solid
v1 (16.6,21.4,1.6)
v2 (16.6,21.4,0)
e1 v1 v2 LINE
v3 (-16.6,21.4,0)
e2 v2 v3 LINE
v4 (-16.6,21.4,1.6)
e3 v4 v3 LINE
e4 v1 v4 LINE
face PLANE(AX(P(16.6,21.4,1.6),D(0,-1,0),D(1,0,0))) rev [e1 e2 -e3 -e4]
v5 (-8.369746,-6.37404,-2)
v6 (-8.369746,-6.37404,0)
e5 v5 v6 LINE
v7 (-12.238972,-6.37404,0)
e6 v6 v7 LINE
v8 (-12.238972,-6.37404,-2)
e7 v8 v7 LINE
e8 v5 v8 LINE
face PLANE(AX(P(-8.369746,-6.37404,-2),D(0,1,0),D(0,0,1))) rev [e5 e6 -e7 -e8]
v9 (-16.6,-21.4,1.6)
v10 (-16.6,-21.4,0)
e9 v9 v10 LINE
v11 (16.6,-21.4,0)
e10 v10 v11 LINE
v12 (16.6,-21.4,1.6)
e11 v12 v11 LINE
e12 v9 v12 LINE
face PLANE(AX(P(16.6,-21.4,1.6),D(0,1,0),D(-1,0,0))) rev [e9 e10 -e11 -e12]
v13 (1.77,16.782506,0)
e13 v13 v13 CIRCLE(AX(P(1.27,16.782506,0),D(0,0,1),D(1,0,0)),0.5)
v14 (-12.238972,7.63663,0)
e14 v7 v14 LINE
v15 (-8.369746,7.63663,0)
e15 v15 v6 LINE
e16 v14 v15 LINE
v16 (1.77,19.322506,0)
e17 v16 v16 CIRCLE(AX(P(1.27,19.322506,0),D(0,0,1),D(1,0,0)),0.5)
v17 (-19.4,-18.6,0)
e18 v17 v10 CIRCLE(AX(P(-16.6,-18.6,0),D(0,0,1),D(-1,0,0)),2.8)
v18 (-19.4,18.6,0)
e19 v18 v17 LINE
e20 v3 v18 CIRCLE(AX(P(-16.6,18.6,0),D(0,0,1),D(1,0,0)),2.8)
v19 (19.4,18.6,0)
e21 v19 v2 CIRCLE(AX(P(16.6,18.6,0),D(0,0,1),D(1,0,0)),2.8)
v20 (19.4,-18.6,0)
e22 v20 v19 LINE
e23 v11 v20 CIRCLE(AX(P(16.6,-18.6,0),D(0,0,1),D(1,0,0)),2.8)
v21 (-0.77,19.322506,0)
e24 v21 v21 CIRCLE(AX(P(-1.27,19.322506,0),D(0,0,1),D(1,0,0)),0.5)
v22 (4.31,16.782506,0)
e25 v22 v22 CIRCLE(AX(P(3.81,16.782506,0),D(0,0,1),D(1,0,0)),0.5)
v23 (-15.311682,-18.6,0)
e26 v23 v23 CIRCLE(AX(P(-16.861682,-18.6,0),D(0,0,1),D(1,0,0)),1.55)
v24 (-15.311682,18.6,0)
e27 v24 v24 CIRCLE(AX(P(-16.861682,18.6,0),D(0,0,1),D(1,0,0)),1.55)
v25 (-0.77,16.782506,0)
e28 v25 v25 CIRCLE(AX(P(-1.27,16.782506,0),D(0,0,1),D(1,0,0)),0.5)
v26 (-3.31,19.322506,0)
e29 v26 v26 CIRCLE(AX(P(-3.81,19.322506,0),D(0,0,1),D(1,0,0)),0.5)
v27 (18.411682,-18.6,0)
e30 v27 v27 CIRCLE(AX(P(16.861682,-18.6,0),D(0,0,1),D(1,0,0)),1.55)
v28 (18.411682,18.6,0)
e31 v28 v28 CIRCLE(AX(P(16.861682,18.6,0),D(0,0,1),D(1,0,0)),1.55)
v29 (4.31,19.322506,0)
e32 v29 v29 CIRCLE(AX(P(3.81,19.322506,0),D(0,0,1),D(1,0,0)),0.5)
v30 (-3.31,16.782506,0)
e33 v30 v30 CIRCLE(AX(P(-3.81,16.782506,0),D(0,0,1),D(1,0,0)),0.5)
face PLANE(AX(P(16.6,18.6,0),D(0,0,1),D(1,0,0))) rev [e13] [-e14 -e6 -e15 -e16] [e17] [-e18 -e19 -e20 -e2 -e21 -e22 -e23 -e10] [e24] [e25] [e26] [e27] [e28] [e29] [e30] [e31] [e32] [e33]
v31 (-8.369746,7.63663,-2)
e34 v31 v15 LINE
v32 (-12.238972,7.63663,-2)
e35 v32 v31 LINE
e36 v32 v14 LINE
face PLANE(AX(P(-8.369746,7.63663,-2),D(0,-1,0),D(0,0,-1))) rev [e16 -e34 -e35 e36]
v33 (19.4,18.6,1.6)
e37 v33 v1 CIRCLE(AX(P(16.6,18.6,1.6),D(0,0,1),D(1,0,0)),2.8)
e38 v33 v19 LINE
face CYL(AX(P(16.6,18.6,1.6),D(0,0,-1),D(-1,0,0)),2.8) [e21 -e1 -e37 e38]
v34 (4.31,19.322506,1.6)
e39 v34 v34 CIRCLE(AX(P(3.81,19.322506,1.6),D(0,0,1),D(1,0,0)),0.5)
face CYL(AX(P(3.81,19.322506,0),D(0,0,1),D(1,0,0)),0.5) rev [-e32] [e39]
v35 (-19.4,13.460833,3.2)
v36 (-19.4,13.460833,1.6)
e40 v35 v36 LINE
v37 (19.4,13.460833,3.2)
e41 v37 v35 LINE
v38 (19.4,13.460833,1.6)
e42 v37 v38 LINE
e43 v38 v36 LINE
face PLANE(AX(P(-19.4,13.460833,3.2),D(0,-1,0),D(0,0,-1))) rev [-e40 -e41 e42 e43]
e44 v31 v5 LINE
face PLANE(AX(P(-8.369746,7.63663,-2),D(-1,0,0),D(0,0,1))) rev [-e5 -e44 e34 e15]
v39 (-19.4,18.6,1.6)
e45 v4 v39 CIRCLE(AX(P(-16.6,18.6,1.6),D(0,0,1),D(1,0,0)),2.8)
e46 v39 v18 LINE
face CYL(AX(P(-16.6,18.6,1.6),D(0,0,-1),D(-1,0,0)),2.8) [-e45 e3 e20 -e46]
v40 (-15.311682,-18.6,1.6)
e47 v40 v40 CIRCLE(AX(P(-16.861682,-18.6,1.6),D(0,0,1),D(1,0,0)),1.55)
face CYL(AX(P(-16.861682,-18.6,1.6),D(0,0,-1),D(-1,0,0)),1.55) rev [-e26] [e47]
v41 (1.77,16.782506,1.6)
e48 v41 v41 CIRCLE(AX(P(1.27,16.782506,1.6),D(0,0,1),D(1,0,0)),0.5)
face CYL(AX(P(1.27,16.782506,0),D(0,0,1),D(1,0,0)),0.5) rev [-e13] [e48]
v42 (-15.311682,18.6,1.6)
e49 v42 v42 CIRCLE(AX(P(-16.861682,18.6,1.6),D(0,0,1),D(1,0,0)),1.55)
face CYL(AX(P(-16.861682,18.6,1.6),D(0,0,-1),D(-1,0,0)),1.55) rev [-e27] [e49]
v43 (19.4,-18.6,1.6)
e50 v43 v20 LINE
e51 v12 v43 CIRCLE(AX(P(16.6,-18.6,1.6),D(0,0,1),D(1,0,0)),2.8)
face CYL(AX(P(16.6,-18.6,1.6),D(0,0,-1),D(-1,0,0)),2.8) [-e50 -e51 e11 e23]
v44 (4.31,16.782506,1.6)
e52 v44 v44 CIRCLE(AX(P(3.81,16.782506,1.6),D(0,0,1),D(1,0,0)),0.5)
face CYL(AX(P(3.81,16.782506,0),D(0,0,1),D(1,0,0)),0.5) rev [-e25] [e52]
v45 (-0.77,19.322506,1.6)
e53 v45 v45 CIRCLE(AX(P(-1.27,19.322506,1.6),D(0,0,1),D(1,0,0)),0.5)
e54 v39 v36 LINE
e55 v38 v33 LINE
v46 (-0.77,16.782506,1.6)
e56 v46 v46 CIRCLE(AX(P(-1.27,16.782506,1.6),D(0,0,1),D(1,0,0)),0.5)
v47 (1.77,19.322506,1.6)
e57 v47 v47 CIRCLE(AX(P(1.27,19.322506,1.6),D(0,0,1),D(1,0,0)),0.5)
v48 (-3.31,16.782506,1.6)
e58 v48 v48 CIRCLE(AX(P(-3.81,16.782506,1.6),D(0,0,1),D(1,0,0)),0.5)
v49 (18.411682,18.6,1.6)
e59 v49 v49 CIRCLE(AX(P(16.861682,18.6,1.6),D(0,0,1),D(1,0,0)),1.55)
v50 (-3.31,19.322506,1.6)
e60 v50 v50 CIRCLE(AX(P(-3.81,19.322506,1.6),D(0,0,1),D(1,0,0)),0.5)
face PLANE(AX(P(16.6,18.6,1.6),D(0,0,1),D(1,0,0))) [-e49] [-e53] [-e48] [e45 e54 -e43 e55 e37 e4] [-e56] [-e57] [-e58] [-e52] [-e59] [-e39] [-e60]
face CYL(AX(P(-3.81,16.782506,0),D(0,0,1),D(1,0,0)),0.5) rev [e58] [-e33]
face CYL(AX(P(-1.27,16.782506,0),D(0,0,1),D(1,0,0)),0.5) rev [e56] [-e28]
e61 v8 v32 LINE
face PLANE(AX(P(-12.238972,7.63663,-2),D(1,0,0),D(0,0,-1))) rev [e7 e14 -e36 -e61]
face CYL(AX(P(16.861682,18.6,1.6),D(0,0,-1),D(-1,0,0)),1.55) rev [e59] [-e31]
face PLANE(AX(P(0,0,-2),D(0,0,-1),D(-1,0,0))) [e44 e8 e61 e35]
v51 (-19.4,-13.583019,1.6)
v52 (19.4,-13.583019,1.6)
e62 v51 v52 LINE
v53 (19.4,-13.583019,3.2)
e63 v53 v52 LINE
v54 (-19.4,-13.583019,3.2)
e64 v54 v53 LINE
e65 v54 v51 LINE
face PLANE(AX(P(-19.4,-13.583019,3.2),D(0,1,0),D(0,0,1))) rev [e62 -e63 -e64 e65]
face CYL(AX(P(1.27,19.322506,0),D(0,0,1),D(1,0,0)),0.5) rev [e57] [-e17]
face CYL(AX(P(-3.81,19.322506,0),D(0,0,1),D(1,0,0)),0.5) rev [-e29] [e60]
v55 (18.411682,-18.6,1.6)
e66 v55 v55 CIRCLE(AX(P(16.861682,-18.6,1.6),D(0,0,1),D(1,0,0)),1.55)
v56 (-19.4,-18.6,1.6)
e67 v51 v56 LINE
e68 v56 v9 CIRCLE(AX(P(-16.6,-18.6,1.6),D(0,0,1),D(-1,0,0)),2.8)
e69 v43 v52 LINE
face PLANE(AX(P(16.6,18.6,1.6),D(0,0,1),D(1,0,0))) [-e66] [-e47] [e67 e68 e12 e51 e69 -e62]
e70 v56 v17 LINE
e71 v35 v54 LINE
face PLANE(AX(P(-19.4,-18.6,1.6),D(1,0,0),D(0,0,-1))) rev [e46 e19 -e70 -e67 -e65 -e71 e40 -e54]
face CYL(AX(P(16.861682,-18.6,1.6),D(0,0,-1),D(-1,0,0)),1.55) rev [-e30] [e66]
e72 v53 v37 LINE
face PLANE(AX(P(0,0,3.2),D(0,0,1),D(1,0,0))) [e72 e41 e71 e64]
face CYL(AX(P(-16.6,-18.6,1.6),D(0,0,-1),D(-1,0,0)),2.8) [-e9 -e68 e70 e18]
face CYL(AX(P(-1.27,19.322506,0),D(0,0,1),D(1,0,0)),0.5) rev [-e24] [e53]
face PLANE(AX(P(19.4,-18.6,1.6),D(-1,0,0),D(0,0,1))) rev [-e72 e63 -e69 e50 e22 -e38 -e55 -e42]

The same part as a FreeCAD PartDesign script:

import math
import FreeCAD as App
import Part
import Sketcher
from FreeCAD import Vector
Q = App.Units.Quantity

doc = App.newDocument("Part")
body = doc.addObject("PartDesign::Body", "Body")

# Sketch on XY plane
sketch1 = body.newObject("Sketcher::SketchObject", "Sketch")
sketch1.AttachmentSupport = (doc.getObject("XY_Plane"), [""])
sketch1.MapMode = "FlatFace"
sketch1.addGeometry(Part.LineSegment(Vector(-16.6, -21.4, 0), Vector(16.6, -21.4, 0)), False)
sketch1.addGeometry(Part.ArcOfCircle(Part.Circle(Vector(16.6, -18.6, 0), Vector(0, 0, 1), 2.8), math.radians(-90), math.radians(0)), False)
sketch1.addGeometry(Part.LineSegment(Vector(19.4, -18.6, 0), Vector(19.4, 18.6, 0)), False)
sketch1.addGeometry(Part.ArcOfCircle(Part.Circle(Vector(16.6, 18.6, 0), Vector(0, 0, 1), 2.8), math.radians(0), math.radians(90)), False)
sketch1.addGeometry(Part.LineSegment(Vector(16.6, 21.4, 0), Vector(-16.6, 21.4, 0)), False)
sketch1.addGeometry(Part.ArcOfCircle(Part.Circle(Vector(-16.6, 18.6, 0), Vector(0, 0, 1), 2.8), math.radians(90), math.radians(180)), False)
sketch1.addGeometry(Part.LineSegment(Vector(-19.4, 18.6, 0), Vector(-19.4, -18.6, 0)), False)
sketch1.addGeometry(Part.ArcOfCircle(Part.Circle(Vector(-16.6, -18.6, 0), Vector(0, 0, 1), 2.8), math.radians(-180), math.radians(-90)), False)
sketch1.addGeometry(Part.Circle(Vector(16.9, -18.6, 0), Vector(0, 0, 1), 1.6), False)
sketch1.addGeometry(Part.Circle(Vector(-16.9, -18.6, 0), Vector(0, 0, 1), 1.6), False)
sketch1.addGeometry(Part.Circle(Vector(16.9, 18.6, 0), Vector(0, 0, 1), 1.6), False)
sketch1.addGeometry(Part.Circle(Vector(-16.9, 18.6, 0), Vector(0, 0, 1), 1.6), False)
sketch1.addConstraint(Sketcher.Constraint("Tangent", 0, 2, 1, 1))
sketch1.addConstraint(Sketcher.Constraint("Tangent", 1, 2, 2, 1))
sketch1.addConstraint(Sketcher.Constraint("Tangent", 2, 2, 3, 1))
sketch1.addConstraint(Sketcher.Constraint("Tangent", 3, 2, 4, 1))
sketch1.addConstraint(Sketcher.Constraint("Tangent", 4, 2, 5, 1))
sketch1.addConstraint(Sketcher.Constraint("Tangent", 5, 2, 6, 1))
sketch1.addConstraint(Sketcher.Constraint("Tangent", 6, 2, 7, 1))
sketch1.addConstraint(Sketcher.Constraint("Tangent", 7, 2, 0, 1))
sketch1.addConstraint(Sketcher.Constraint("Horizontal", 0))
sketch1.addConstraint(Sketcher.Constraint("Vertical", 2))
sketch1.addConstraint(Sketcher.Constraint("Horizontal", 4))
sketch1.addConstraint(Sketcher.Constraint("Vertical", 6))
sketch1.addConstraint(Sketcher.Constraint("Equal", 1, 3))
sketch1.addConstraint(Sketcher.Constraint("Equal", 3, 5))
sketch1.addConstraint(Sketcher.Constraint("Equal", 5, 7))
sketch1.addConstraint(Sketcher.Constraint("Equal", 8, 9))
sketch1.addConstraint(Sketcher.Constraint("Equal", 9, 10))
sketch1.addConstraint(Sketcher.Constraint("Equal", 10, 11))
sketch1.addConstraint(Sketcher.Constraint("Symmetric", 1, 3, 5, 3, -1, 1))
sketch1.addConstraint(Sketcher.Constraint("Symmetric", 9, 3, 10, 3, -1, 1))
sketch1.addConstraint(Sketcher.Constraint("Symmetric", 8, 3, 11, 3, -1, 1))
sketch1.addConstraint(Sketcher.Constraint("Symmetric", 8, 3, 9, 3, -2))
sketch1.addConstraint(Sketcher.Constraint("Horizontal", 7, 3, 8, 3))
sketch1.addConstraint(Sketcher.Constraint("Diameter", 8, Q("3.1 mm")))
sketch1.addConstraint(Sketcher.Constraint("Radius", 1, Q("2.8 mm")))
sketch1.addConstraint(Sketcher.Constraint("DistanceX", 0, 1, 0, 2, Q("33.2 mm")))
sketch1.addConstraint(Sketcher.Constraint("DistanceY", 2, 1, 2, 2, Q("37.2 mm")))
sketch1.addConstraint(Sketcher.Constraint("DistanceX", -1, 1, 8, 3, Q("16.861682 mm")))
pad1 = body.newObject("PartDesign::Pad", "Pad")
pad1.Profile = sketch1
pad1.Length = 1.6

# Sketch on XY plane
sketch2 = body.newObject("Sketcher::SketchObject", "Sketch001")
sketch2.AttachmentSupport = (doc.getObject("XY_Plane"), [""])
sketch2.MapMode = "FlatFace"
sketch2.AttachmentOffset = App.Placement(Vector(0, 0, 1.6), App.Rotation())
sketch2.addGeometry(Part.Circle(Vector(-3.8, 16.8, 0), Vector(0, 0, 1), 0.5), False)
sketch2.addGeometry(Part.Circle(Vector(-1.3, 16.8, 0), Vector(0, 0, 1), 0.5), False)
sketch2.addGeometry(Part.Circle(Vector(1.3, 16.8, 0), Vector(0, 0, 1), 0.5), False)
sketch2.addGeometry(Part.Circle(Vector(3.8, 16.8, 0), Vector(0, 0, 1), 0.5), False)
sketch2.addGeometry(Part.Circle(Vector(-1.3, 19.3, 0), Vector(0, 0, 1), 0.5), False)
sketch2.addGeometry(Part.Circle(Vector(1.3, 19.3, 0), Vector(0, 0, 1), 0.5), False)
sketch2.addGeometry(Part.Circle(Vector(3.8, 19.3, 0), Vector(0, 0, 1), 0.5), False)
sketch2.addGeometry(Part.Circle(Vector(-3.8, 19.3, 0), Vector(0, 0, 1), 0.5), False)
sketch2.addConstraint(Sketcher.Constraint("Equal", 0, 1))
sketch2.addConstraint(Sketcher.Constraint("Equal", 1, 2))
sketch2.addConstraint(Sketcher.Constraint("Equal", 2, 3))
sketch2.addConstraint(Sketcher.Constraint("Equal", 3, 4))
sketch2.addConstraint(Sketcher.Constraint("Equal", 4, 5))
sketch2.addConstraint(Sketcher.Constraint("Equal", 5, 6))
sketch2.addConstraint(Sketcher.Constraint("Equal", 6, 7))
sketch2.addConstraint(Sketcher.Constraint("Symmetric", 1, 3, 2, 3, -2))
sketch2.addConstraint(Sketcher.Constraint("Symmetric", 0, 3, 3, 3, -2))
sketch2.addConstraint(Sketcher.Constraint("Symmetric", 4, 3, 5, 3, -2))
sketch2.addConstraint(Sketcher.Constraint("Symmetric", 6, 3, 7, 3, -2))
sketch2.addConstraint(Sketcher.Constraint("Horizontal", 0, 3, 1, 3))
sketch2.addConstraint(Sketcher.Constraint("Horizontal", 5, 3, 6, 3))
sketch2.addConstraint(Sketcher.Constraint("Vertical", 1, 3, 4, 3))
sketch2.addConstraint(Sketcher.Constraint("Vertical", 3, 3, 6, 3))
sketch2.addConstraint(Sketcher.Constraint("Diameter", 0, Q("1 mm")))
sketch2.addConstraint(Sketcher.Constraint("DistanceX", 0, 3, -1, 1, Q("3.81 mm")))
sketch2.addConstraint(Sketcher.Constraint("DistanceX", 1, 3, -1, 1, Q("1.27 mm")))
sketch2.addConstraint(Sketcher.Constraint("DistanceY", 1, 3, 4, 3, Q("2.54 mm")))
sketch2.addConstraint(Sketcher.Constraint("DistanceY", -1, 1, 0, 3, Q("16.782506 mm")))
pocket1 = body.newObject("PartDesign::Pocket", "Pocket")
pocket1.Profile = sketch2
pocket1.Length = 1.6

# Sketch on XY plane
sketch3 = body.newObject("Sketcher::SketchObject", "Sketch002")
sketch3.AttachmentSupport = (doc.getObject("XY_Plane"), [""])
sketch3.MapMode = "FlatFace"
sketch3.AttachmentOffset = App.Placement(Vector(0, 0, 1.6), App.Rotation())
sketch3.addGeometry(Part.LineSegment(Vector(-19, 13, 0), Vector(-19, -14, 0)), False)
sketch3.addGeometry(Part.LineSegment(Vector(-19, -14, 0), Vector(19, -14, 0)), False)
sketch3.addGeometry(Part.LineSegment(Vector(19, -14, 0), Vector(19, 13, 0)), False)
sketch3.addGeometry(Part.LineSegment(Vector(19, 13, 0), Vector(-19, 13, 0)), False)
sketch3.addConstraint(Sketcher.Constraint("Coincident", 0, 2, 1, 1))
sketch3.addConstraint(Sketcher.Constraint("Coincident", 1, 2, 2, 1))
sketch3.addConstraint(Sketcher.Constraint("Coincident", 2, 2, 3, 1))
sketch3.addConstraint(Sketcher.Constraint("Coincident", 3, 2, 0, 1))
sketch3.addConstraint(Sketcher.Constraint("Vertical", 0))
sketch3.addConstraint(Sketcher.Constraint("Horizontal", 1))
sketch3.addConstraint(Sketcher.Constraint("Vertical", 2))
sketch3.addConstraint(Sketcher.Constraint("Horizontal", 3))
sketch3.addConstraint(Sketcher.Constraint("DistanceX", 1, 1, 1, 2, Q("38.8 mm")))
sketch3.addConstraint(Sketcher.Constraint("DistanceX", 0, 2, -1, 1, Q("19.4 mm")))
sketch3.addConstraint(Sketcher.Constraint("DistanceY", 0, 2, 0, 1, Q("27.043852 mm")))
sketch3.addConstraint(Sketcher.Constraint("DistanceY", 0, 2, -1, 1, Q("13.583019 mm")))
pad2 = body.newObject("PartDesign::Pad", "Pad001")
pad2.Profile = sketch3
pad2.Length = 1.6

# Sketch on XY plane
sketch4 = body.newObject("Sketcher::SketchObject", "Sketch003")
sketch4.AttachmentSupport = (doc.getObject("XY_Plane"), [""])
sketch4.MapMode = "FlatFace"
sketch4.addGeometry(Part.LineSegment(Vector(-8.4, 7.6, 0), Vector(-8.4, -6.4, 0)), False)
sketch4.addGeometry(Part.LineSegment(Vector(-8.4, -6.4, 0), Vector(-12.2, -6.4, 0)), False)
sketch4.addGeometry(Part.LineSegment(Vector(-12.2, -6.4, 0), Vector(-12.2, 7.6, 0)), False)
sketch4.addGeometry(Part.LineSegment(Vector(-12.2, 7.6, 0), Vector(-8.4, 7.6, 0)), False)
sketch4.addConstraint(Sketcher.Constraint("Coincident", 0, 2, 1, 1))
sketch4.addConstraint(Sketcher.Constraint("Coincident", 1, 2, 2, 1))
sketch4.addConstraint(Sketcher.Constraint("Coincident", 2, 2, 3, 1))
sketch4.addConstraint(Sketcher.Constraint("Coincident", 3, 2, 0, 1))
sketch4.addConstraint(Sketcher.Constraint("Vertical", 0))
sketch4.addConstraint(Sketcher.Constraint("Horizontal", 1))
sketch4.addConstraint(Sketcher.Constraint("Vertical", 2))
sketch4.addConstraint(Sketcher.Constraint("Horizontal", 3))
sketch4.addConstraint(Sketcher.Constraint("DistanceY", 0, 2, 0, 1, Q("14.01067 mm")))
sketch4.addConstraint(Sketcher.Constraint("DistanceX", 1, 2, 1, 1, Q("3.869226 mm")))
sketch4.addConstraint(Sketcher.Constraint("DistanceY", 0, 2, -1, 1, Q("6.37404 mm")))
sketch4.addConstraint(Sketcher.Constraint("DistanceX", 0, 2, -1, 1, Q("8.369746 mm")))
pad3 = body.newObject("PartDesign::Pad", "Pad002")
pad3.Profile = sketch4
pad3.Length = 2
pad3.Reversed = True

doc.recompute()
